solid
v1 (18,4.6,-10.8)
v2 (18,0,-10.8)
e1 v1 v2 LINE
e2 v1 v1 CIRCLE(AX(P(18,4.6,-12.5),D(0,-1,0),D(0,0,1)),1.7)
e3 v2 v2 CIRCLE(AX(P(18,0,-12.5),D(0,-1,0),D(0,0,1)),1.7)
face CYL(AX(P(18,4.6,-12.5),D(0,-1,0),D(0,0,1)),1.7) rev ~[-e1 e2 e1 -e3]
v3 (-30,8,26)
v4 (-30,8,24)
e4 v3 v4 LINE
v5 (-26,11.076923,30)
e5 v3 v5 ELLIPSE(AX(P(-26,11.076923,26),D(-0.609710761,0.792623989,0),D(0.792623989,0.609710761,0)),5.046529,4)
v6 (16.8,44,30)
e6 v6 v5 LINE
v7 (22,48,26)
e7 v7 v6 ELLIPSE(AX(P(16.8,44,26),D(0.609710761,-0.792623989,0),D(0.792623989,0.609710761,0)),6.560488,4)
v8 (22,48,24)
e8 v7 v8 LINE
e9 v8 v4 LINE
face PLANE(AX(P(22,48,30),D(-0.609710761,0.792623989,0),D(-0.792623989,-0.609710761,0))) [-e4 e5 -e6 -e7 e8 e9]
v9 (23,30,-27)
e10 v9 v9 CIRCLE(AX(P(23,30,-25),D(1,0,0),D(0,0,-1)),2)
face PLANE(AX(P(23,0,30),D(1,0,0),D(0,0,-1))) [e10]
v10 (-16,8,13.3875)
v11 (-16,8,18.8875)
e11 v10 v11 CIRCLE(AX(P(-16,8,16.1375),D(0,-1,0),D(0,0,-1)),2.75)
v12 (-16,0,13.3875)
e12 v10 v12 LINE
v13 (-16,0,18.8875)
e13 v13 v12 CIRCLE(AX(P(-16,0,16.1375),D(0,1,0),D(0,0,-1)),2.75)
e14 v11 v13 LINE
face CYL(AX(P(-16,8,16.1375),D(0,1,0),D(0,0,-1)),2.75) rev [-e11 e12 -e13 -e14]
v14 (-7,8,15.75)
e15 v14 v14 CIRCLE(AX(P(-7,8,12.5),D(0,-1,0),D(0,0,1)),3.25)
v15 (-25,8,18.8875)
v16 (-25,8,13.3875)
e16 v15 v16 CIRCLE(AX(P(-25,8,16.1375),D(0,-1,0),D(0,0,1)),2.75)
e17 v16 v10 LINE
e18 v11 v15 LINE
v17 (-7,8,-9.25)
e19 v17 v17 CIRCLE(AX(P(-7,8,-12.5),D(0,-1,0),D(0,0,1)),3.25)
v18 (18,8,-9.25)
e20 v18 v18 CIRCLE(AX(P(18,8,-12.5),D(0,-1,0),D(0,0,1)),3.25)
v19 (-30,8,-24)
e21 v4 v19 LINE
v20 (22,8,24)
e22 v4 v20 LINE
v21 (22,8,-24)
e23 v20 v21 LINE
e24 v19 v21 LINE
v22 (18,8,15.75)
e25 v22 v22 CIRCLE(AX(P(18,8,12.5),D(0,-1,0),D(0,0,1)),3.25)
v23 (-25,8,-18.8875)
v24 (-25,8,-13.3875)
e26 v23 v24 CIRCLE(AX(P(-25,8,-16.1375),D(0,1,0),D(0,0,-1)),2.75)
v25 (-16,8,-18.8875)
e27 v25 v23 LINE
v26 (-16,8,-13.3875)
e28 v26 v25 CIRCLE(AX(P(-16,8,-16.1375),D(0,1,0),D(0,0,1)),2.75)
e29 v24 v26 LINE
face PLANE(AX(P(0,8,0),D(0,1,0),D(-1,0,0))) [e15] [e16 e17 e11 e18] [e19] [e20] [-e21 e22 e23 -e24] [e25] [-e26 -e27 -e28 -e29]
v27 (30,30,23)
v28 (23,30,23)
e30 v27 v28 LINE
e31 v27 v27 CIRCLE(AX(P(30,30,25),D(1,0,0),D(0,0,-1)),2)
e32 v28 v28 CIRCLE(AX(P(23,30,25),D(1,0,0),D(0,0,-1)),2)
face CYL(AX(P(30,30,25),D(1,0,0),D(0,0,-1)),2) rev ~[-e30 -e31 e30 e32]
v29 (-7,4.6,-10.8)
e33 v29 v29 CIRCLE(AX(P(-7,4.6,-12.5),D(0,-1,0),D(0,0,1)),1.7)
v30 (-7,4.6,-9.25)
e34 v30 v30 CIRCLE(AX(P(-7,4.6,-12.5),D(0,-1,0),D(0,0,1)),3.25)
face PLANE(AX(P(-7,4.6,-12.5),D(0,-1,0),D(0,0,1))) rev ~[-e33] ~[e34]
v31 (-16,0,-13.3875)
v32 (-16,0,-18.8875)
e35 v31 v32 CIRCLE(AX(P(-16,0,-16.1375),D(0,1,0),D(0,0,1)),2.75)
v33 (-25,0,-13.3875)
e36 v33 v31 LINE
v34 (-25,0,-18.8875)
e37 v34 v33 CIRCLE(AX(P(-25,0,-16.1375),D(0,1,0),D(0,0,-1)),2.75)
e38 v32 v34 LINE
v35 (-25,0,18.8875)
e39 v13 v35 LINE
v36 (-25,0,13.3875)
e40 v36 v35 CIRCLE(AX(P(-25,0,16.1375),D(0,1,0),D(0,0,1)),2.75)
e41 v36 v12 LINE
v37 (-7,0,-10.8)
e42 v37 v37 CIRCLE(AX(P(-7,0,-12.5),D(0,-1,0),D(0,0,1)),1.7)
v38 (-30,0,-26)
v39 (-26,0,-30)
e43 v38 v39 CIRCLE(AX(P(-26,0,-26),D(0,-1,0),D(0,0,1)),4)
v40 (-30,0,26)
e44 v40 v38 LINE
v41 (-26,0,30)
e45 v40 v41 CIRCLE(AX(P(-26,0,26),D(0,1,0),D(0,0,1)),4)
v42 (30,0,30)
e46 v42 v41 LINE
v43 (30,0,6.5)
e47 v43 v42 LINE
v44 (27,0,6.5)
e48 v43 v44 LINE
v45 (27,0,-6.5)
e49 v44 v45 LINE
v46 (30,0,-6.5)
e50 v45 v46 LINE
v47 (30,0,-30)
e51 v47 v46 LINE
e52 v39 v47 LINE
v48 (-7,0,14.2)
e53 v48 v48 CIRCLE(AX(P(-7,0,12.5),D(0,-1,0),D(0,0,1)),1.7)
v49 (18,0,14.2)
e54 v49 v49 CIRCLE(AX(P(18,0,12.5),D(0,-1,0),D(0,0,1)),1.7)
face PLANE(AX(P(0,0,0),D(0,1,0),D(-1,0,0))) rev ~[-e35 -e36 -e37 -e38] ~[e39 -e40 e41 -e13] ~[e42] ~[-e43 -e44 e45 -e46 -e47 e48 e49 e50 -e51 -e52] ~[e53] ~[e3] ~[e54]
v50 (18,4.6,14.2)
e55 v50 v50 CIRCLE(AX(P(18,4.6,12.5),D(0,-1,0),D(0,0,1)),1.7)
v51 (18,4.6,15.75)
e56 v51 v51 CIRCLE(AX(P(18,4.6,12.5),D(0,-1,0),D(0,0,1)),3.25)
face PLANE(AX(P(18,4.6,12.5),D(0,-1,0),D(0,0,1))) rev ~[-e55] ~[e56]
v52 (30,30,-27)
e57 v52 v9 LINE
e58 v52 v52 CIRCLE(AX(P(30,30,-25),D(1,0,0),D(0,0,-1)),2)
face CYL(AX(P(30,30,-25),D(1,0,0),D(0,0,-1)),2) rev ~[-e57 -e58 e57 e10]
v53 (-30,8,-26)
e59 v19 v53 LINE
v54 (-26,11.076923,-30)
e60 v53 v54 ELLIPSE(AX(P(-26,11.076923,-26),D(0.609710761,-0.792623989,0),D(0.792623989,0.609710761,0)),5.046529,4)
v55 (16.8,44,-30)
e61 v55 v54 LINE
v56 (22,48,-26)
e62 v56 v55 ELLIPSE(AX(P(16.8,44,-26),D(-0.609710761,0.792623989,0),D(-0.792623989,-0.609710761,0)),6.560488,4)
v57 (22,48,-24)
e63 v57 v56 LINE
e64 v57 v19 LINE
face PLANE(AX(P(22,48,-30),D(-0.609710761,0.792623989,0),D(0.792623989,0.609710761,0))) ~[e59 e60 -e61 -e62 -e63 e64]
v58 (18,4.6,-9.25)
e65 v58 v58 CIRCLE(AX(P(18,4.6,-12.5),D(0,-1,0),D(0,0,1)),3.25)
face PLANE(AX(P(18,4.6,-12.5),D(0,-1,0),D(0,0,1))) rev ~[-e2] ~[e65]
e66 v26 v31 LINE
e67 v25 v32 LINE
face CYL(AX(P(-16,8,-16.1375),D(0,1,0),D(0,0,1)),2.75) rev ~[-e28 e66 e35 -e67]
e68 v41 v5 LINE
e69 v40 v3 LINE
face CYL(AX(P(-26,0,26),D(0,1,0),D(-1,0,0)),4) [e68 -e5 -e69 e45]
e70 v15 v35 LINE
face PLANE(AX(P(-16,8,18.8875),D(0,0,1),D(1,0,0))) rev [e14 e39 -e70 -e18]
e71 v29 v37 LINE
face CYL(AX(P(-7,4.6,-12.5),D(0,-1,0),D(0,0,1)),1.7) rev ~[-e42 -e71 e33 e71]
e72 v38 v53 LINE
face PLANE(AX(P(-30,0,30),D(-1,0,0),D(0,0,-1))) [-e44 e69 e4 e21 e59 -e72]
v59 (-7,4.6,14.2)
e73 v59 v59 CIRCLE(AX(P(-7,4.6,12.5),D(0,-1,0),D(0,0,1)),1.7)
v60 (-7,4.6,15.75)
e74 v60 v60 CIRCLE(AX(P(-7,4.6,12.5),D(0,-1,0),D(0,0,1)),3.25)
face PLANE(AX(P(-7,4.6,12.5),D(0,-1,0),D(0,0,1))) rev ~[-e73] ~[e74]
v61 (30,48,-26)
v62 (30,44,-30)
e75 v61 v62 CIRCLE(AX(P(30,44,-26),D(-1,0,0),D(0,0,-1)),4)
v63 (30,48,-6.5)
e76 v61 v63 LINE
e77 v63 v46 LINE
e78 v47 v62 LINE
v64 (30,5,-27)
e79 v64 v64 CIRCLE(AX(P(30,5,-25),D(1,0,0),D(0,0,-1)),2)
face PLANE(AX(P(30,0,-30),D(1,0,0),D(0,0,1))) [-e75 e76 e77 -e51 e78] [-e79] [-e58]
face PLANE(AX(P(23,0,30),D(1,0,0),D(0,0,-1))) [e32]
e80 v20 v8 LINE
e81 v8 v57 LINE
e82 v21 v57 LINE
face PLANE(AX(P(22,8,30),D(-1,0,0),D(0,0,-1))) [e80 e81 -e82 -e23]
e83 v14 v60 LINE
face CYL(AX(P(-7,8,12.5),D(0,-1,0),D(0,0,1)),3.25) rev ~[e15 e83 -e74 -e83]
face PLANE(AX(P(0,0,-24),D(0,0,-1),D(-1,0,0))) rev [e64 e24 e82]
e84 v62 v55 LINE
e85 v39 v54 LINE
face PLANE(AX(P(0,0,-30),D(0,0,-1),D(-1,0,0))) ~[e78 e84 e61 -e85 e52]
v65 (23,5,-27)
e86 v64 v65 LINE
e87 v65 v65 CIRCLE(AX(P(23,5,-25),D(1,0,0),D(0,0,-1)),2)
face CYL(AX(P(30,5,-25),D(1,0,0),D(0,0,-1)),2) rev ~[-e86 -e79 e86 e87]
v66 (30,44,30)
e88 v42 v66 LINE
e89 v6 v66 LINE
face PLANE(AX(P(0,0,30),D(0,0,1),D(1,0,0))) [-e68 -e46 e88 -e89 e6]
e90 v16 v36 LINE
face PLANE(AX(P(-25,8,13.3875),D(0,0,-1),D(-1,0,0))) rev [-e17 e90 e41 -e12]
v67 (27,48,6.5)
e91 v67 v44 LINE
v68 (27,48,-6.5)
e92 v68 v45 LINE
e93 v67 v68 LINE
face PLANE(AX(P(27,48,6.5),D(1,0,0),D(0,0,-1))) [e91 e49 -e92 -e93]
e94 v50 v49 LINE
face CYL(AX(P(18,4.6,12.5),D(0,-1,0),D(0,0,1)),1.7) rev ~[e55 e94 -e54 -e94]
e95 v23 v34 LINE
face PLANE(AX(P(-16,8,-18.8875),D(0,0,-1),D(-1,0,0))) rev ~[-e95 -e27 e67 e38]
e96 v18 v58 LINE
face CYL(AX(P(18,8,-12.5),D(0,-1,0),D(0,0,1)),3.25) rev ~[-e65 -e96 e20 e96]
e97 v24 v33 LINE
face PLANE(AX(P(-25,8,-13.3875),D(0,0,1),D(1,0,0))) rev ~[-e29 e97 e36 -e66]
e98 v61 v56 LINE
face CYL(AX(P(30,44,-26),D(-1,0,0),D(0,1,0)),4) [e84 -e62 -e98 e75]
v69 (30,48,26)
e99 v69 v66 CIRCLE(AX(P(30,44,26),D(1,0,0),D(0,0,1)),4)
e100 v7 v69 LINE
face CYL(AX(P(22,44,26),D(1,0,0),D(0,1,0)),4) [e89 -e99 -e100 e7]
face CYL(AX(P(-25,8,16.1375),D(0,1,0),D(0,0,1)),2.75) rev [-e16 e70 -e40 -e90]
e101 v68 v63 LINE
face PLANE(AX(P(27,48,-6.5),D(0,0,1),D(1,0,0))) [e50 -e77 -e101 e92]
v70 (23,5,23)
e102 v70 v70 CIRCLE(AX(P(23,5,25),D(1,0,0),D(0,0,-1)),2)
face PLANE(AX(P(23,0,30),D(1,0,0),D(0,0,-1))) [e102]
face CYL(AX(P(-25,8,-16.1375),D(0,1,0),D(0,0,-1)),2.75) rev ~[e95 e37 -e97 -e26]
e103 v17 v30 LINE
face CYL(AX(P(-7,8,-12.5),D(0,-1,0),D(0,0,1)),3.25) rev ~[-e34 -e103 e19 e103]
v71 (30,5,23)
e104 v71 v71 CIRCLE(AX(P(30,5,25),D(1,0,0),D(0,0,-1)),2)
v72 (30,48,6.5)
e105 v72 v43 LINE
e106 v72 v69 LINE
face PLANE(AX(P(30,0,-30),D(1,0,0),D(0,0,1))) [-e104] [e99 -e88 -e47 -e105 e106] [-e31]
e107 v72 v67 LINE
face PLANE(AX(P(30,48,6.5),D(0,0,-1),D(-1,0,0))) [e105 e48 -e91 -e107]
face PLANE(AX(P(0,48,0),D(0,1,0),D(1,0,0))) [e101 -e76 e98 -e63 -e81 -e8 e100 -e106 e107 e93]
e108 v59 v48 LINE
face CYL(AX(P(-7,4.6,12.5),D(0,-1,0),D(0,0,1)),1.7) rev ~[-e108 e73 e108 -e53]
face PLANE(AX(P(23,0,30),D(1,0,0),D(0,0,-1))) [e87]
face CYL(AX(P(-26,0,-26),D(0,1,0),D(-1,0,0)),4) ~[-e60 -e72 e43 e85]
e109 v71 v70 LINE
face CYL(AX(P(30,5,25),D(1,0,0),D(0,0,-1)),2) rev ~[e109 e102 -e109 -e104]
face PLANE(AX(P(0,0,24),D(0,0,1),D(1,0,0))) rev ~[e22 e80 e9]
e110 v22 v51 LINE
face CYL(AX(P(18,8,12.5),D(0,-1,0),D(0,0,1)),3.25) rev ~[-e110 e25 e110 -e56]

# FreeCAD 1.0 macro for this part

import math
import FreeCAD as App
import Part
import Sketcher
Q = App.Units.Quantity


def edges_at(feature, points):
    """Names of the edges that pass closest to the given points."""
    edges = feature.Shape.Edges
    near = lambda p: min(range(len(edges)), key=lambda i: edges[i].distToShape(Part.Vertex(*p))[0])
    return sorted({f"Edge{near(p) + 1}" for p in points})

doc = App.newDocument("Part")
body = doc.addObject("PartDesign::Body", "Body")

# Sketch on XZ plane
sketch1 = doc.addObject("Sketcher::SketchObject", "Sketch")
body.addObject(sketch1)
sketch1.AttachmentSupport = (doc.XZ_Plane, [""])
sketch1.MapMode = "FlatFace"
sketch1.addGeometry(Part.LineSegment(App.Vector(-30, 30, 0), App.Vector(30, 30, 0)), False)
sketch1.addGeometry(Part.LineSegment(App.Vector(30, 30, 0), App.Vector(30, -30, 0)), False)
sketch1.addGeometry(Part.LineSegment(App.Vector(30, -30, 0), App.Vector(-30, -30, 0)), False)
sketch1.addGeometry(Part.LineSegment(App.Vector(-30, -30, 0), App.Vector(-30, 30, 0)), False)
sketch1.addConstraint(Sketcher.Constraint("Coincident", 0, 2, 1, 1))
sketch1.addConstraint(Sketcher.Constraint("Coincident", 1, 2, 2, 1))
sketch1.addConstraint(Sketcher.Constraint("Coincident", 2, 2, 3, 1))
sketch1.addConstraint(Sketcher.Constraint("Coincident", 3, 2, 0, 1))
sketch1.addConstraint(Sketcher.Constraint("Horizontal", 0))
sketch1.addConstraint(Sketcher.Constraint("Vertical", 1))
sketch1.addConstraint(Sketcher.Constraint("Horizontal", 2))
sketch1.addConstraint(Sketcher.Constraint("Vertical", 3))
sketch1.addConstraint(Sketcher.Constraint("Symmetric", 0, 2, 2, 2, -1, 1))
sketch1.addConstraint(Sketcher.Constraint("Equal", 2, 1))
sketch1.addConstraint(Sketcher.Constraint("DistanceX", 0, 1, 0, 2, Q("60 mm")))
pad1 = doc.addObject("PartDesign::Pad", "Pad")
body.addObject(pad1)
pad1.Profile = sketch1
pad1.Length = 8
pad1.Reversed = True

# Sketch on XZ plane
sketch2 = doc.addObject("Sketcher::SketchObject", "Sketch001")
body.addObject(sketch2)
sketch2.AttachmentSupport = (doc.XZ_Plane, [""])
sketch2.MapMode = "FlatFace"
sketch2.AttachmentOffset = App.Placement(App.Vector(0, 0, -8), App.Rotation())
sketch2.addGeometry(Part.LineSegment(App.Vector(22, -30, 0), App.Vector(22, 30, 0)), False)
sketch2.addGeometry(Part.LineSegment(App.Vector(22, 30, 0), App.Vector(30, 30, 0)), False)
sketch2.addGeometry(Part.LineSegment(App.Vector(30, 30, 0), App.Vector(30, -30, 0)), False)
sketch2.addGeometry(Part.LineSegment(App.Vector(30, -30, 0), App.Vector(22, -30, 0)), False)
sketch2.addConstraint(Sketcher.Constraint("Coincident", 0, 2, 1, 1))
sketch2.addConstraint(Sketcher.Constraint("Coincident", 1, 2, 2, 1))
sketch2.addConstraint(Sketcher.Constraint("Coincident", 2, 2, 3, 1))
sketch2.addConstraint(Sketcher.Constraint("Coincident", 3, 2, 0, 1))
sketch2.addConstraint(Sketcher.Constraint("Vertical", 0))
sketch2.addConstraint(Sketcher.Constraint("Horizontal", 1))
sketch2.addConstraint(Sketcher.Constraint("Vertical", 2))
sketch2.addConstraint(Sketcher.Constraint("Horizontal", 3))
sketch2.addConstraint(Sketcher.Constraint("DistanceX", 1, 1, 1, 2, Q("8 mm")))
sketch2.addConstraint(Sketcher.Constraint("DistanceY", 0, 1, 0, 2, Q("60 mm")))
sketch2.addConstraint(Sketcher.Constraint("DistanceX", -1, 1, 0, 2, Q("22 mm")))
sketch2.addConstraint(Sketcher.Constraint("DistanceY", -1, 1, 0, 2, Q("30 mm")))
pad2 = doc.addObject("PartDesign::Pad", "Pad001")
body.addObject(pad2)
pad2.Profile = sketch2
pad2.Length = 40
pad2.Reversed = True

# Sketch on XZ plane
sketch3 = doc.addObject("Sketcher::SketchObject", "Sketch002")
body.addObject(sketch3)
sketch3.AttachmentSupport = (doc.XZ_Plane, [""])
sketch3.MapMode = "FlatFace"
sketch3.AttachmentOffset = App.Placement(App.Vector(0, 0, -8), App.Rotation())
sketch3.addGeometry(Part.Circle(App.Vector(18, 12.5, 0), App.Vector(0, 0, 1), 1.7), False)
sketch3.addGeometry(Part.Circle(App.Vector(18, -12.5, 0), App.Vector(0, 0, 1), 1.7), False)
sketch3.addGeometry(Part.Circle(App.Vector(-7, -12.5, 0), App.Vector(0, 0, 1), 1.7), False)
sketch3.addGeometry(Part.Circle(App.Vector(-7, 12.5, 0), App.Vector(0, 0, 1), 1.7), False)
sketch3.addConstraint(Sketcher.Constraint("Equal", 0, 1))
sketch3.addConstraint(Sketcher.Constraint("Equal", 1, 2))
sketch3.addConstraint(Sketcher.Constraint("Equal", 2, 3))
sketch3.addConstraint(Sketcher.Constraint("Symmetric", 0, 3, 1, 3, -1))
sketch3.addConstraint(Sketcher.Constraint("Symmetric", 2, 3, 3, 3, -1))
sketch3.addConstraint(Sketcher.Constraint("Horizontal", 1, 3, 2, 3))
sketch3.addConstraint(Sketcher.Constraint("Diameter", 0, Q("3.4 mm")))
sketch3.addConstraint(Sketcher.Constraint("DistanceX", -1, 1, 0, 3, Q("18 mm")))
sketch3.addConstraint(Sketcher.Constraint("DistanceX", 2, 3, -1, 1, Q("7 mm")))
sketch3.addConstraint(Sketcher.Constraint("DistanceY", 1, 3, 0, 3, Q("25 mm")))
doc.recompute()
hole = doc.addObject("PartDesign::Hole", "Hole")
body.addObject(hole)
hole.Profile = sketch3
hole.ThreadType = "None"
hole.Diameter = 3.4
hole.DepthType = "ThroughAll"
hole.HoleCutType = "Counterbore"
hole.HoleCutDiameter = 6.5
hole.HoleCutDepth = 3.4
hole.Reversed = True

# Sketch on YZ plane
sketch4 = doc.addObject("Sketcher::SketchObject", "Sketch003")
body.addObject(sketch4)
sketch4.AttachmentSupport = (doc.YZ_Plane, [""])
sketch4.MapMode = "FlatFace"
sketch4.AttachmentOffset = App.Placement(App.Vector(0, 0, 30), App.Rotation())
sketch4.addGeometry(Part.Circle(App.Vector(5, 25, 0), App.Vector(0, 0, 1), 2), False)
sketch4.addGeometry(Part.Circle(App.Vector(5, -25, 0), App.Vector(0, 0, 1), 2), False)
sketch4.addGeometry(Part.Circle(App.Vector(30, -25, 0), App.Vector(0, 0, 1), 2), False)
sketch4.addGeometry(Part.Circle(App.Vector(30, 25, 0), App.Vector(0, 0, 1), 2), False)
sketch4.addConstraint(Sketcher.Constraint("Equal", 0, 1))
sketch4.addConstraint(Sketcher.Constraint("Equal", 1, 2))
sketch4.addConstraint(Sketcher.Constraint("Equal", 2, 3))
sketch4.addConstraint(Sketcher.Constraint("Symmetric", 0, 3, 1, 3, -1))
sketch4.addConstraint(Sketcher.Constraint("Symmetric", 2, 3, 3, 3, -1))
sketch4.addConstraint(Sketcher.Constraint("Horizontal", 1, 3, 2, 3))
sketch4.addConstraint(Sketcher.Constraint("Diameter", 0, Q("4 mm")))
sketch4.addConstraint(Sketcher.Constraint("DistanceX", -1, 1, 0, 3, Q("5 mm")))
sketch4.addConstraint(Sketcher.Constraint("DistanceY", -1, 1, 0, 3, Q("25 mm")))
sketch4.addConstraint(Sketcher.Constraint("DistanceX", 1, 3, 2, 3, Q("25 mm")))
pocket1 = doc.addObject("PartDesign::Pocket", "Pocket")
body.addObject(pocket1)
pocket1.Profile = sketch4
pocket1.Length = 7

# Sketch on XY plane
sketch5 = doc.addObject("Sketcher::SketchObject", "Sketch004")
body.addObject(sketch5)
sketch5.AttachmentSupport = (doc.XY_Plane, [""])
sketch5.MapMode = "FlatFace"
sketch5.AttachmentOffset = App.Placement(App.Vector(0, 0, 30), App.Rotation())
sketch5.addGeometry(Part.LineSegment(App.Vector(22, 8, 0), App.Vector(22, 48, 0)), False)
sketch5.addGeometry(Part.LineSegment(App.Vector(22, 48, 0), App.Vector(-30, 8, 0)), False)
sketch5.addGeometry(Part.LineSegment(App.Vector(-30, 8, 0), App.Vector(22, 8, 0)), False)
sketch5.addConstraint(Sketcher.Constraint("Coincident", 0, 2, 1, 1))
sketch5.addConstraint(Sketcher.Constraint("Coincident", 1, 2, 2, 1))
sketch5.addConstraint(Sketcher.Constraint("Coincident", 2, 2, 0, 1))
sketch5.addConstraint(Sketcher.Constraint("Vertical", 0))
sketch5.addConstraint(Sketcher.Constraint("Horizontal", 2))
sketch5.addConstraint(Sketcher.Constraint("DistanceX", 2, 1, 2, 2, Q("52 mm")))
sketch5.addConstraint(Sketcher.Constraint("DistanceY", 0, 1, 0, 2, Q("40 mm")))
sketch5.addConstraint(Sketcher.Constraint("DistanceX", -1, 1, 0, 2, Q("22 mm")))
sketch5.addConstraint(Sketcher.Constraint("DistanceY", -1, 1, 0, 2, Q("48 mm")))
pad3 = doc.addObject("PartDesign::Pad", "Pad002")
body.addObject(pad3)
pad3.Profile = sketch5
pad3.Length = 6
pad3.Reversed = True
doc.recompute()

mirrored = doc.addObject("PartDesign::Mirrored", "Mirrored")
body.addObject(mirrored)
mirrored.Originals = [pad3]
mirrored.MirrorPlane = (doc.XY_Plane, [""])
body.Tip = mirrored

# Sketch on XZ plane
sketch6 = doc.addObject("Sketcher::SketchObject", "Sketch005")
body.addObject(sketch6)
sketch6.AttachmentSupport = (doc.XZ_Plane, [""])
sketch6.MapMode = "FlatFace"
sketch6.AttachmentOffset = App.Placement(App.Vector(0, 0, -48), App.Rotation())
sketch6.addGeometry(Part.LineSegment(App.Vector(27, 6.5, 0), App.Vector(30, 6.5, 0)), False)
sketch6.addGeometry(Part.LineSegment(App.Vector(30, 6.5, 0), App.Vector(30, -6.5, 0)), False)
sketch6.addGeometry(Part.LineSegment(App.Vector(30, -6.5, 0), App.Vector(27, -6.5, 0)), False)
sketch6.addGeometry(Part.LineSegment(App.Vector(27, -6.5, 0), App.Vector(27, 6.5, 0)), False)
sketch6.addConstraint(Sketcher.Constraint("Coincident", 0, 2, 1, 1))
sketch6.addConstraint(Sketcher.Constraint("Coincident", 1, 2, 2, 1))
sketch6.addConstraint(Sketcher.Constraint("Coincident", 2, 2, 3, 1))
sketch6.addConstraint(Sketcher.Constraint("Coincident", 3, 2, 0, 1))
sketch6.addConstraint(Sketcher.Constraint("Horizontal", 0))
sketch6.addConstraint(Sketcher.Constraint("Vertical", 1))
sketch6.addConstraint(Sketcher.Constraint("Horizontal", 2))
sketch6.addConstraint(Sketcher.Constraint("Vertical", 3))
sketch6.addConstraint(Sketcher.Constraint("DistanceX", 0, 1, 0, 2, Q("3 mm")))
sketch6.addConstraint(Sketcher.Constraint("DistanceY", 1, 2, 1, 1, Q("13 mm")))
sketch6.addConstraint(Sketcher.Constraint("DistanceX", -1, 1, 0, 2, Q("30 mm")))
sketch6.addConstraint(Sketcher.Constraint("DistanceY", -1, 1, 0, 2, Q("6.5 mm")))
pocket2 = doc.addObject("PartDesign::Pocket", "Pocket001")
body.addObject(pocket2)
pocket2.Profile = sketch6
pocket2.Type = "ThroughAll"
pocket2.Reversed = True

# Sketch on XZ plane
sketch7 = doc.addObject("Sketcher::SketchObject", "Sketch006")
body.addObject(sketch7)
sketch7.AttachmentSupport = (doc.XZ_Plane, [""])
sketch7.MapMode = "FlatFace"
sketch7.AttachmentOffset = App.Placement(App.Vector(0, 0, -8), App.Rotation())
sketch7.addGeometry(Part.ArcOfCircle(Part.Circle(App.Vector(-25, -16.1, 0), App.Vector(0, 0, 1), 2.8), math.radians(90), math.radians(270)), False)
sketch7.addGeometry(Part.LineSegment(App.Vector(-25, -13.4, 0), App.Vector(-16, -13.4, 0)), False)
sketch7.addGeometry(Part.ArcOfCircle(Part.Circle(App.Vector(-16, -16.1, 0), App.Vector(0, 0, 1), 2.8), math.radians(-90), math.radians(90)), False)
sketch7.addGeometry(Part.LineSegment(App.Vector(-16, -18.9, 0), App.Vector(-25, -18.9, 0)), False)
sketch7.addConstraint(Sketcher.Constraint("Tangent", 0, 1, 1, 1))
sketch7.addConstraint(Sketcher.Constraint("Tangent", 1, 2, 2, 2))
sketch7.addConstraint(Sketcher.Constraint("Tangent", 2, 1, 3, 1))
sketch7.addConstraint(Sketcher.Constraint("Tangent", 3, 2, 0, 2))
sketch7.addConstraint(Sketcher.Constraint("Horizontal", 1))
sketch7.addConstraint(Sketcher.Constraint("Horizontal", 3))
sketch7.addConstraint(Sketcher.Constraint("DistanceX", 1, 1, 1, 2, Q("9 mm")))
sketch7.addConstraint(Sketcher.Constraint("Radius", 0, Q("2.75 mm")))
sketch7.addConstraint(Sketcher.Constraint("DistanceX", 0, 3, -1, 1, Q("25 mm")))
sketch7.addConstraint(Sketcher.Constraint("DistanceY", 0, 3, -1, 1, Q("16.1375 mm")))
pocket3 = doc.addObject("PartDesign::Pocket", "Pocket002")
body.addObject(pocket3)
pocket3.Profile = sketch7
pocket3.Type = "ThroughAll"
pocket3.Reversed = True
doc.recompute()

mirrored2 = doc.addObject("PartDesign::Mirrored", "Mirrored001")
body.addObject(mirrored2)
mirrored2.Originals = [pocket3]
mirrored2.MirrorPlane = (doc.XY_Plane, [""])
body.Tip = mirrored2
doc.recompute()

fillet = doc.addObject("PartDesign::Fillet", "Fillet")
body.addObject(fillet)
fillet.Base = (mirrored2, edges_at(mirrored2, [
    (26, 48, 30),
    (26, 48, -30),
    (-30, 4, 30),
    (-30, 4, -30),
]))
fillet.Radius = 4

doc.recompute()
